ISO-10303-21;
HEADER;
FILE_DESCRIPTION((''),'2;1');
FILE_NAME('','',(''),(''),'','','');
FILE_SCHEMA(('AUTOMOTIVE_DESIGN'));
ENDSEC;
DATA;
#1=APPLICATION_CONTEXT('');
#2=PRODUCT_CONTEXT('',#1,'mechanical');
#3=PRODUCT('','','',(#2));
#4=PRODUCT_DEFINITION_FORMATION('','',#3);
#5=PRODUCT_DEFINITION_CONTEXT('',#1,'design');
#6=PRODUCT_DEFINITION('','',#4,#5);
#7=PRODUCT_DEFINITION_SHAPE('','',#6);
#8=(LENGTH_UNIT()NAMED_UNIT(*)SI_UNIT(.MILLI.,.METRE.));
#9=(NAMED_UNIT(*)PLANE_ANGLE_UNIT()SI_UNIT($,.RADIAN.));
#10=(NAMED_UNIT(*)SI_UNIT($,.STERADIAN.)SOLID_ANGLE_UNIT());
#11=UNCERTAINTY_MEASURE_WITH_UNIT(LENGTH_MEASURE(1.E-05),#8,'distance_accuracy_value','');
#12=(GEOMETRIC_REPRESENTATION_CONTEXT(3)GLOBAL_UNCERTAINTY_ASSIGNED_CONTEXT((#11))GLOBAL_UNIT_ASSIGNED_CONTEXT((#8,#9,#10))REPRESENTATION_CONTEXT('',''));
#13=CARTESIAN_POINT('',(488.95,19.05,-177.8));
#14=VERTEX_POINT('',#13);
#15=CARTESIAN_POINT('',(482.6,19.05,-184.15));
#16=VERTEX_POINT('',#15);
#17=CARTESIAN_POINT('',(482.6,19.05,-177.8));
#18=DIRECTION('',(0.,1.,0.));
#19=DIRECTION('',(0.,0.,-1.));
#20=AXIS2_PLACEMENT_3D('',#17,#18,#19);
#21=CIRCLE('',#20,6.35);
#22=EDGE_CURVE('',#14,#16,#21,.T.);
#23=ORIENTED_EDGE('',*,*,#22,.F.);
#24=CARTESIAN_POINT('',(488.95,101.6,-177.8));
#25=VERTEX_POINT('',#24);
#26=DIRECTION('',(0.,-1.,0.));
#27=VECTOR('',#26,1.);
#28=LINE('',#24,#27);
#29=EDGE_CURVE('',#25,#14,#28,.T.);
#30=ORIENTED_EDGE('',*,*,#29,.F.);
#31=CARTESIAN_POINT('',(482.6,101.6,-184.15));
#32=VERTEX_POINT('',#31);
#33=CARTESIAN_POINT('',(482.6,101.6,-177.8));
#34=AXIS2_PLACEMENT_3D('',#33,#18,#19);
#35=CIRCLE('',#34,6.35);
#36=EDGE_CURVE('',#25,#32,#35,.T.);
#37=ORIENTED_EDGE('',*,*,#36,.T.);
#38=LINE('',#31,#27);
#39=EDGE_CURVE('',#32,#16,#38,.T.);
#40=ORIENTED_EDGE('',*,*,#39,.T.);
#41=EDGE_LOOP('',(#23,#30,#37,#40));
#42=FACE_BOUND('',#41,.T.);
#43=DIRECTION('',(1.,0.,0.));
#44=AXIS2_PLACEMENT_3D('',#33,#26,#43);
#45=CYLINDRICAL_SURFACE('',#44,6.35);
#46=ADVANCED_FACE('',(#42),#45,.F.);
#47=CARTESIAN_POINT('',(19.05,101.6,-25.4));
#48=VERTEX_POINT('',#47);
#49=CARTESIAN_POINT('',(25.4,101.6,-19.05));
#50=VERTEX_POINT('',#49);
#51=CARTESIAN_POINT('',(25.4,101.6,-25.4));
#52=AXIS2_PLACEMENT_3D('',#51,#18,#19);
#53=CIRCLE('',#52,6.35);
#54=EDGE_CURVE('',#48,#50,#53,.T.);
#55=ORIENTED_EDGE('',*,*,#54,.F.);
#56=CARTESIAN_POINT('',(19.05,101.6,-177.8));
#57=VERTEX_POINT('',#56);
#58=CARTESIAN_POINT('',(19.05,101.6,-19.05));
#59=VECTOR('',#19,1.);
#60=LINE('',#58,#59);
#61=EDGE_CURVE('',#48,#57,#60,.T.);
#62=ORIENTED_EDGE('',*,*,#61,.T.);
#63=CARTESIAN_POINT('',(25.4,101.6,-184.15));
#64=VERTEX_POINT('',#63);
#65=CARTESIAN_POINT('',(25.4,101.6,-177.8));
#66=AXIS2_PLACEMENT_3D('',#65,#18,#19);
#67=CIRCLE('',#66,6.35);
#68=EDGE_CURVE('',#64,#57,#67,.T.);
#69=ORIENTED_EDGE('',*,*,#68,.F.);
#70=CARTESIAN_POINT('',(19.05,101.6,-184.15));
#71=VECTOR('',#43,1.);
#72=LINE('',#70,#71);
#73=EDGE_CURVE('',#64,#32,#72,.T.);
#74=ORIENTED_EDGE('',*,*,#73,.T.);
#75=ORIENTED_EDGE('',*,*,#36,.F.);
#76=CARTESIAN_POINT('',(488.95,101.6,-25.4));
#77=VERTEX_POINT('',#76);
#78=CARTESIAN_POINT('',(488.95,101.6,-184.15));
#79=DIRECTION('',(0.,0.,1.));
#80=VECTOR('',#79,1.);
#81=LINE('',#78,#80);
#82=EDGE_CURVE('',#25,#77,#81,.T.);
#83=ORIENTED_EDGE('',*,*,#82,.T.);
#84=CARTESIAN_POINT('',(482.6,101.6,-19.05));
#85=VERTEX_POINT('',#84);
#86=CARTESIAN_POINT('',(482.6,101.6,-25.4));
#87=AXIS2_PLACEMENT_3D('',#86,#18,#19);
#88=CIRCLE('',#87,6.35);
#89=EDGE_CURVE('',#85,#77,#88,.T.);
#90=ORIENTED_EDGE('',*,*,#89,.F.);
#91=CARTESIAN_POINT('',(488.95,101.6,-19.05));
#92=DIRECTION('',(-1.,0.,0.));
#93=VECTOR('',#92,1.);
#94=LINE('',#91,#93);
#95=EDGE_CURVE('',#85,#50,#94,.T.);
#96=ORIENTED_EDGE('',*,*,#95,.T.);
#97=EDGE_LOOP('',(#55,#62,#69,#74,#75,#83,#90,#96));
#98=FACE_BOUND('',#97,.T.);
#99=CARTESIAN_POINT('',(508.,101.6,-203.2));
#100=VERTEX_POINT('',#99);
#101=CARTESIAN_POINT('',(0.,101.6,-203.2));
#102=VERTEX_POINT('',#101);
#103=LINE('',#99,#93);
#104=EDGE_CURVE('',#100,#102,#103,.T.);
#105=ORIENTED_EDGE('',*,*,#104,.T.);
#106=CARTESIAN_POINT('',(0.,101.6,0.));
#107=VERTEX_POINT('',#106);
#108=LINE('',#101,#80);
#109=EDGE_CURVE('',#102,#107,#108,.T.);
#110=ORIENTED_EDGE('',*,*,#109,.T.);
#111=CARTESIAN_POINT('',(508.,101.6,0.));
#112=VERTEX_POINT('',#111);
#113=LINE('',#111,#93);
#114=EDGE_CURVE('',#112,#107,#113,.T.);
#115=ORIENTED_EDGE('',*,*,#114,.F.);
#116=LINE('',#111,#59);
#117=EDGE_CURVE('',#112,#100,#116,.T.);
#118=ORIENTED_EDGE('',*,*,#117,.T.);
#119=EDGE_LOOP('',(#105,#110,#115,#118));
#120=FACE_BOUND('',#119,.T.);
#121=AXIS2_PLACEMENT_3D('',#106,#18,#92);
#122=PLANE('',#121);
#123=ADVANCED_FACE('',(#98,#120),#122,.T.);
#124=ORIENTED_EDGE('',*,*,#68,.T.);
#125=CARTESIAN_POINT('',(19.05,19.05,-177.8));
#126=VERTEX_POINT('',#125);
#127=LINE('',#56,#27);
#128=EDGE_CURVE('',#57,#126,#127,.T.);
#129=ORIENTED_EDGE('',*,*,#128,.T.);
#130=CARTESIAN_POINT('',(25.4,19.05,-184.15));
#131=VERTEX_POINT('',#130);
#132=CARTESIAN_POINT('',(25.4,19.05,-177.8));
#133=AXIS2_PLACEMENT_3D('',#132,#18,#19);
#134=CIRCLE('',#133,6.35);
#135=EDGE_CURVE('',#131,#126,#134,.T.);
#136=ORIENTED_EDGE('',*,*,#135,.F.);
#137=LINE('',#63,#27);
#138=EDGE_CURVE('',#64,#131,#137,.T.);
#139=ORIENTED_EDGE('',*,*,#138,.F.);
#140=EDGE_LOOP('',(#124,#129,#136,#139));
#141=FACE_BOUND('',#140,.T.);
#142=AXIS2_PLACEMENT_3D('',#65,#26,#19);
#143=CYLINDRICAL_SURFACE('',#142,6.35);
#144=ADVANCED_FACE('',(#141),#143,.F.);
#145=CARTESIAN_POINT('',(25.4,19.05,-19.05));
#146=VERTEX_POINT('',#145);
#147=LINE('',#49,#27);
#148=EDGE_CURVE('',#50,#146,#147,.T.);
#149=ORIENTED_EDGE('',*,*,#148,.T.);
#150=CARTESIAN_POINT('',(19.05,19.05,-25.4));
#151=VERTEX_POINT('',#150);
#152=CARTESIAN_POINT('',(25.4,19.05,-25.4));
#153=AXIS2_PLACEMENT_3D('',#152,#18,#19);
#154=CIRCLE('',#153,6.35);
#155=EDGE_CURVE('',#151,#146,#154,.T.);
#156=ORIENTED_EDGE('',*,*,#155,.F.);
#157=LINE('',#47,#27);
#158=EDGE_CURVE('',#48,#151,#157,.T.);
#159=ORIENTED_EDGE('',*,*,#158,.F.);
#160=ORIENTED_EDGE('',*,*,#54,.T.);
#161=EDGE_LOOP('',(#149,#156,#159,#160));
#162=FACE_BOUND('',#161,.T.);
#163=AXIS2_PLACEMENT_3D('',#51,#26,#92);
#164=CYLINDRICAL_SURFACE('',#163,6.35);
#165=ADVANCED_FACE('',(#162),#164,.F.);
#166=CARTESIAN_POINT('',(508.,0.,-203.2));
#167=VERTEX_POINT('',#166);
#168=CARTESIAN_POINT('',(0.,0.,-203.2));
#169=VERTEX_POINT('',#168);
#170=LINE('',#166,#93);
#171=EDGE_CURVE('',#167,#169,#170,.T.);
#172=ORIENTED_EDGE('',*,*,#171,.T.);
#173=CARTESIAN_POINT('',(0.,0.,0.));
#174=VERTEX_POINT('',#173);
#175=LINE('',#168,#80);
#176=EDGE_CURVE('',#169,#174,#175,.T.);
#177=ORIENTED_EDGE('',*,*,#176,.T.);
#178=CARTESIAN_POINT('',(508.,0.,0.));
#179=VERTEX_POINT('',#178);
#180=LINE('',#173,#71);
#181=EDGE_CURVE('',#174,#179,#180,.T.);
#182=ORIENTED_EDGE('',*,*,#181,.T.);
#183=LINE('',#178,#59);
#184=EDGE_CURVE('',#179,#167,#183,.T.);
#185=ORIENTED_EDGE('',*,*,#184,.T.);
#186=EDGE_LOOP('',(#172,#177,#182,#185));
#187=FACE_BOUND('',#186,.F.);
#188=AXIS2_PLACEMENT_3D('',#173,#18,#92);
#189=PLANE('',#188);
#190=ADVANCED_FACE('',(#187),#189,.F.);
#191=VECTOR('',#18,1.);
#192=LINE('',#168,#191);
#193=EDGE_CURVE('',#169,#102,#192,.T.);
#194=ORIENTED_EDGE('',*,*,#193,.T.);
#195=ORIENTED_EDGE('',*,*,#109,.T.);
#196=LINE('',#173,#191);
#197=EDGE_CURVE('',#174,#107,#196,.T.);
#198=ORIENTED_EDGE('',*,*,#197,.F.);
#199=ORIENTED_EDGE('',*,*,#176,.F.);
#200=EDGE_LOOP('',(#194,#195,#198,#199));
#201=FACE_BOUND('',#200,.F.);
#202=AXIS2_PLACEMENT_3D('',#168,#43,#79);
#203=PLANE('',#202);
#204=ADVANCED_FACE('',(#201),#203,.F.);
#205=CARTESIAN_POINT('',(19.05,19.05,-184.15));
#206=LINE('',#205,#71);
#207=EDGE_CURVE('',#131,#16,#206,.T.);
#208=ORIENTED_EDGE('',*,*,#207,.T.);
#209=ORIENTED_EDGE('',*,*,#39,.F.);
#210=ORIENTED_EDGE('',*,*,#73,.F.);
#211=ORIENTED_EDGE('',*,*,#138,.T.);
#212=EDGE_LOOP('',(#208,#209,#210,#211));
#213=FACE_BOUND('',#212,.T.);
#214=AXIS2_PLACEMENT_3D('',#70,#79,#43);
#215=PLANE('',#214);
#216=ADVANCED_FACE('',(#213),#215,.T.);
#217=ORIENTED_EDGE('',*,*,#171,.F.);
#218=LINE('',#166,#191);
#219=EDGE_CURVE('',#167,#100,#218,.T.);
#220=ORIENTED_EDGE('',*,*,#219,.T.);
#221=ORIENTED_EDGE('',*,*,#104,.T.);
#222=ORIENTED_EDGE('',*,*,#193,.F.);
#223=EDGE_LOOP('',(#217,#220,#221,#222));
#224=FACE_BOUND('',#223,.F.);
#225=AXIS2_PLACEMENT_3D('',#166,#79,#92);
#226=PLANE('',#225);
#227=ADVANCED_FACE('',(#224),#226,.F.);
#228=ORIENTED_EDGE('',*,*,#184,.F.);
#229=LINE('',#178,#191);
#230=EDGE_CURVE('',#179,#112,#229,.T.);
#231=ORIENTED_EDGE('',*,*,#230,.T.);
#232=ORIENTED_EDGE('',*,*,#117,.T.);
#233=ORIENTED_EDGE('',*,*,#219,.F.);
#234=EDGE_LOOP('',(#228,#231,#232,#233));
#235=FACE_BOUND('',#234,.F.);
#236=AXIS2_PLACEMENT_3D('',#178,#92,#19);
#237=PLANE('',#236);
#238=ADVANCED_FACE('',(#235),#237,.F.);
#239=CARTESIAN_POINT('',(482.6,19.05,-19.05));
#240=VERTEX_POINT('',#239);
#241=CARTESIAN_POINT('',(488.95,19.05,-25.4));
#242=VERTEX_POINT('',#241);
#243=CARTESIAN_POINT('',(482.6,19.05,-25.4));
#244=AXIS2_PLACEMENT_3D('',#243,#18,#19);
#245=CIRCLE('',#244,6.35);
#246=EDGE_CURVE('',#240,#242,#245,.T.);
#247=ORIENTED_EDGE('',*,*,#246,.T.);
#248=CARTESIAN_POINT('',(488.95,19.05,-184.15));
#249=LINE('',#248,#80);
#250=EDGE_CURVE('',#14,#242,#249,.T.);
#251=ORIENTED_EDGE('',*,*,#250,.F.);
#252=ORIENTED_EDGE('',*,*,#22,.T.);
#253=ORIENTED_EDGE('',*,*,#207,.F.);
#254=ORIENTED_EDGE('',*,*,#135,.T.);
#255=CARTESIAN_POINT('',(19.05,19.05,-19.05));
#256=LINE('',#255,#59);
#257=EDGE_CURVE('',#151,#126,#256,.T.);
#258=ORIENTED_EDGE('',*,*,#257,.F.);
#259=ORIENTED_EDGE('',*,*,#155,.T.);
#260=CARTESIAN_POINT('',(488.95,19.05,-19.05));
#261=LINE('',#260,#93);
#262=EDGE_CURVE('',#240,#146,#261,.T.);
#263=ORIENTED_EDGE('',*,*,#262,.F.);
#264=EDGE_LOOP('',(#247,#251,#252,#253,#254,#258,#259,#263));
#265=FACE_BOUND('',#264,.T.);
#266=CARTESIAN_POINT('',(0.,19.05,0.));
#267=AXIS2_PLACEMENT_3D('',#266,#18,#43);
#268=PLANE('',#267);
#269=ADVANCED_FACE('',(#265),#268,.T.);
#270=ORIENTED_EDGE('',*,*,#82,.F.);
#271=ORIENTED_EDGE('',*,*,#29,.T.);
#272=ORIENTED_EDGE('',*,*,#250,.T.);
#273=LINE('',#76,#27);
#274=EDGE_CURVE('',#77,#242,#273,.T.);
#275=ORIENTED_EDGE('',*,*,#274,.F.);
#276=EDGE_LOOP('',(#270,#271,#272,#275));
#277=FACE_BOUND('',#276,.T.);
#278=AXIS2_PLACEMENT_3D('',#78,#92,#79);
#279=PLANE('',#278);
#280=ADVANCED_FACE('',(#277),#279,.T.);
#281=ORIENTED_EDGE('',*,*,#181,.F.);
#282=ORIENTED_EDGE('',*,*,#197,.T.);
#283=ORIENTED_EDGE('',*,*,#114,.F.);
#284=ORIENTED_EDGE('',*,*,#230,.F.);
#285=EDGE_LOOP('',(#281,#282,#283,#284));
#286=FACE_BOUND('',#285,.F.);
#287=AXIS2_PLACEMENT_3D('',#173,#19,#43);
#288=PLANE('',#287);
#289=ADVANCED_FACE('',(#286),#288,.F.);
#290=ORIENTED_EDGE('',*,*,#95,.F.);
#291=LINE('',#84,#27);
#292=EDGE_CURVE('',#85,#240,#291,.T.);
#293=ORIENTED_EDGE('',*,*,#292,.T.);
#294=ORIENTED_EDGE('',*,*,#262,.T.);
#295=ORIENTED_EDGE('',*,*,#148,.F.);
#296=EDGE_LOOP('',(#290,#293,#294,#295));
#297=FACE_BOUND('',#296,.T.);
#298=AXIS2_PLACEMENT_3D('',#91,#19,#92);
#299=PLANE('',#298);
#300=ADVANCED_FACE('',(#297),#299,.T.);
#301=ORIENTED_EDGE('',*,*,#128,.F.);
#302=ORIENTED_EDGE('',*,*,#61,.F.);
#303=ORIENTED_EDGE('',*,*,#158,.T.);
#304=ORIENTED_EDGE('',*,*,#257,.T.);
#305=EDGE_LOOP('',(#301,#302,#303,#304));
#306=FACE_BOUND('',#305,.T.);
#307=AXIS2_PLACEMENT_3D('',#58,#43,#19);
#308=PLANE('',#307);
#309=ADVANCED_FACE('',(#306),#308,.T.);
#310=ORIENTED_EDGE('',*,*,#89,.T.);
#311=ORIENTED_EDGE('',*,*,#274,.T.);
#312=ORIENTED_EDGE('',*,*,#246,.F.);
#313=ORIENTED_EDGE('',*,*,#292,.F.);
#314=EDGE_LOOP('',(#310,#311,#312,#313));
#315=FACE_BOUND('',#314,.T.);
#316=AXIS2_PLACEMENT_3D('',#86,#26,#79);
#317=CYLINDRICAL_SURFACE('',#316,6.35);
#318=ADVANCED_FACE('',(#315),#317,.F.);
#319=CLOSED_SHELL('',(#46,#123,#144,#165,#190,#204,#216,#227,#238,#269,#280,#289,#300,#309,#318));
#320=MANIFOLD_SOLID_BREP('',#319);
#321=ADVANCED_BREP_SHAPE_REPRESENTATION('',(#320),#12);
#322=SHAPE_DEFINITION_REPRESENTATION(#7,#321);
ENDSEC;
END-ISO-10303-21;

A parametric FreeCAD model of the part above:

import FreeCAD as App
import Part
import Sketcher
Q = App.Units.Quantity


def edges_at(feature, points):
    """Names of the edges that pass closest to the given points."""
    edges = feature.Shape.Edges
    near = lambda p: min(range(len(edges)), key=lambda i: edges[i].distToShape(Part.Vertex(*p))[0])
    return sorted({f"Edge{near(p) + 1}" for p in points})

doc = App.newDocument("Part")
body = doc.addObject("PartDesign::Body", "Body")

sketch1 = body.newObject("Sketcher::SketchObject", "Sketch")
sketch1.AttachmentSupport = (doc.getObject("XZ_Plane"), [""])
sketch1.MapMode = "FlatFace"
sketch1.addGeometry([
    Part.LineSegment(App.Vector(0, -203, 0), App.Vector(0, 0, 0)),
    Part.LineSegment(App.Vector(0, 0, 0), App.Vector(508, 0, 0)),
    Part.LineSegment(App.Vector(508, 0, 0), App.Vector(508, -203, 0)),
    Part.LineSegment(App.Vector(508, -203, 0), App.Vector(0, -203, 0)),
], False)
sketch1.addConstraint([
    Sketcher.Constraint("Coincident", 0, 2, 1, 1),
    Sketcher.Constraint("Coincident", 1, 2, 2, 1),
    Sketcher.Constraint("Coincident", 2, 2, 3, 1),
    Sketcher.Constraint("Coincident", 3, 2, 0, 1),
    Sketcher.Constraint("Vertical", 0),
    Sketcher.Constraint("Horizontal", 1),
    Sketcher.Constraint("Vertical", 2),
    Sketcher.Constraint("Horizontal", 3),
    Sketcher.Constraint("Coincident", 0, 2, -1, 1),
    Sketcher.Constraint("DistanceX", 1, 1, 1, 2, Q("20 in")),
    Sketcher.Constraint("DistanceY", 0, 1, 0, 2, Q("8 in")),
])
pad1 = body.newObject("PartDesign::Pad", "Pad")
pad1.Profile = sketch1
pad1.Length = Q("4 in")
pad1.Reversed = True

sketch2 = body.newObject("Sketcher::SketchObject", "Sketch001")
sketch2.AttachmentSupport = (doc.getObject("XZ_Plane"), [""])
sketch2.MapMode = "FlatFace"
sketch2.AttachmentOffset = App.Placement(App.Vector(0, 0, -4 * 25.4), App.Rotation())
sketch2.addGeometry([
    Part.LineSegment(App.Vector(19, -184, 0), App.Vector(19, -19, 0)),
    Part.LineSegment(App.Vector(19, -19, 0), App.Vector(489, -19, 0)),
    Part.LineSegment(App.Vector(489, -19, 0), App.Vector(489, -184, 0)),
    Part.LineSegment(App.Vector(489, -184, 0), App.Vector(19, -184, 0)),
], False)
sketch2.addConstraint([
    Sketcher.Constraint("Coincident", 0, 2, 1, 1),
    Sketcher.Constraint("Coincident", 1, 2, 2, 1),
    Sketcher.Constraint("Coincident", 2, 2, 3, 1),
    Sketcher.Constraint("Coincident", 3, 2, 0, 1),
    Sketcher.Constraint("Vertical", 0),
    Sketcher.Constraint("Horizontal", 1),
    Sketcher.Constraint("Vertical", 2),
    Sketcher.Constraint("Horizontal", 3),
    Sketcher.Constraint("DistanceX", 1, 1, 1, 2, Q("18.5 in")),
    Sketcher.Constraint("DistanceY", 0, 1, 0, 2, Q("6.5 in")),
    Sketcher.Constraint("DistanceX", -1, 1, 0, 2, Q("0.75 in")),
    Sketcher.Constraint("DistanceY", 0, 2, -1, 1, Q("0.75 in")),
])
pocket1 = body.newObject("PartDesign::Pocket", "Pocket")
pocket1.Profile = sketch2
pocket1.Length = Q("3.25 in")
pocket1.Reversed = True
doc.recompute()

fillet = body.newObject("PartDesign::Fillet", "Fillet")
fillet.Base = (pocket1, edges_at(pocket1, [(488.95, 60.325, -184.15)]))
fillet.Radius = Q("0.25 in")
doc.recompute()

fillet2 = body.newObject("PartDesign::Fillet", "Fillet001")
fillet2.Base = (fillet, edges_at(fillet, [(19.05, 60.325, -184.15)]))
fillet2.Radius = Q("0.25 in")
doc.recompute()

fillet3 = body.newObject("PartDesign::Fillet", "Fillet002")
fillet3.Base = (fillet2, edges_at(fillet2, [(19.05, 60.325, -19.05)]))
fillet3.Radius = Q("0.25 in")
doc.recompute()

fillet4 = body.newObject("PartDesign::Fillet", "Fillet003")
fillet4.Base = (fillet3, edges_at(fillet3, [(488.95, 60.325, -19.05)]))
fillet4.Radius = Q("0.25 in")

doc.recompute()
